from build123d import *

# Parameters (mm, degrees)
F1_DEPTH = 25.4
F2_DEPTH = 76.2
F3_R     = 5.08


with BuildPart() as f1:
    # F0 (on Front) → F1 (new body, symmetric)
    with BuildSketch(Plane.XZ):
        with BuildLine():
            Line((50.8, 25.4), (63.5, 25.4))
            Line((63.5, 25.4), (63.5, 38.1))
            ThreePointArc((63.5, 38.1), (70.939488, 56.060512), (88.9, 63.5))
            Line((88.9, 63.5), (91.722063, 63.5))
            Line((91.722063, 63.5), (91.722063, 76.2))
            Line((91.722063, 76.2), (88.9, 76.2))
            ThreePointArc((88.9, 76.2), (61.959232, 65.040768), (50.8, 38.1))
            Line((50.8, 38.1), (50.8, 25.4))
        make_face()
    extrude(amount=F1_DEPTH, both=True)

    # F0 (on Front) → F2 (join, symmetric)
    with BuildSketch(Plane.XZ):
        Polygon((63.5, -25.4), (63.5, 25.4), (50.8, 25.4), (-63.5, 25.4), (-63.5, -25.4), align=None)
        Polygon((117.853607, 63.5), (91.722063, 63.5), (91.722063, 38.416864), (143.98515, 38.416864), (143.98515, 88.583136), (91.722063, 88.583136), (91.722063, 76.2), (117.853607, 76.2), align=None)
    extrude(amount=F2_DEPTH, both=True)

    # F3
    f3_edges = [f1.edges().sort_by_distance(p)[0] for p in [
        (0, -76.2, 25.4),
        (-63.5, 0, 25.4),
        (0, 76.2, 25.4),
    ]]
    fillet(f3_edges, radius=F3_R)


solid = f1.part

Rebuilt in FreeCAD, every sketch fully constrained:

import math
import FreeCAD as App
import Part
import Sketcher

V = App.Vector
Q = App.Units.Quantity


def edges_at(feature, points):
    """Names of the edges that pass closest to the given points."""
    edges = feature.Shape.Edges
    near = lambda p: min(range(len(edges)), key=lambda i: edges[i].distToShape(Part.Vertex(*p))[0])
    return sorted({f"Edge{near(p) + 1}" for p in points})


def add_polygon(sketch, points):
    """Adds a closed chain of lines whose ends are joined by coincident constraints."""
    first, n = sketch.GeometryCount, len(points)
    for a, b in zip(points, points[1:] + points[:1]):
        sketch.addGeometry(Part.LineSegment(App.Vector(*a, 0), App.Vector(*b, 0)), False)
    for i in range(n):
        sketch.addConstraint(Sketcher.Constraint("Coincident", first + i, 2, first + (i + 1) % n, 1))

doc = App.newDocument("Part")
params = doc.addObject("Spreadsheet::Sheet", "Params")
for row, (alias, value) in enumerate([
    ("sketch1_radius", "1 in"),
    ("sketch1_radius2", "1.5 in"),
    ("pad1_length", "2 in"),
    ("sketch2_width", "5 in"),
    ("sketch2_height", "2 in"),
    ("sketch2_height2", "0.5 in"),
    ("pad2_length", "6 in"),
    ("fillet_radius", "0.2 in"),
], start=1):
    params.set(f"A{row}", alias)
    params.set(f"B{row}", "=" + value)
    params.setAlias(f"B{row}", alias)

body = doc.addObject("PartDesign::Body", "Body")
body.AllowCompound = True

sketch1 = doc.addObject("Sketcher::SketchObject", "Sketch")
body.addObject(sketch1)
sketch1.AttachmentSupport = (doc.XZ_Plane, [""])
sketch1.MapMode = "FlatFace"
sketch1.addGeometry(Part.LineSegment(V(50.8, 25.4, 0), V(63.5, 25.4, 0)), False)
sketch1.addGeometry(Part.LineSegment(V(63.5, 25.4, 0), V(63.5, 38.1, 0)), False)
sketch1.addGeometry(Part.ArcOfCircle(Part.Circle(V(88.9, 38.1, 0), V(0, 0, 1), 25.4), math.radians(90), math.radians(180)), False)
sketch1.addGeometry(Part.LineSegment(V(88.9, 63.5, 0), V(91.7, 63.5, 0)), False)
sketch1.addGeometry(Part.LineSegment(V(91.7, 63.5, 0), V(91.7, 76.2, 0)), False)
sketch1.addGeometry(Part.LineSegment(V(91.7, 76.2, 0), V(88.9, 76.2, 0)), False)
sketch1.addGeometry(Part.ArcOfCircle(Part.Circle(V(88.9, 38.1, 0), V(0, 0, 1), 38.1), math.radians(90), math.radians(180)), False)
sketch1.addGeometry(Part.LineSegment(V(50.8, 38.1, 0), V(50.8, 25.4, 0)), False)
sketch1.addConstraint(Sketcher.Constraint("Coincident", 0, 2, 1, 1))
sketch1.addConstraint(Sketcher.Constraint("Tangent", 1, 2, 2, 2))
sketch1.addConstraint(Sketcher.Constraint("Tangent", 2, 1, 3, 1))
sketch1.addConstraint(Sketcher.Constraint("Coincident", 3, 2, 4, 1))
sketch1.addConstraint(Sketcher.Constraint("Coincident", 4, 2, 5, 1))
sketch1.addConstraint(Sketcher.Constraint("Tangent", 5, 2, 6, 1))
sketch1.addConstraint(Sketcher.Constraint("Tangent", 6, 2, 7, 1))
sketch1.addConstraint(Sketcher.Constraint("Coincident", 7, 2, 0, 1))
sketch1.addConstraint(Sketcher.Constraint("Horizontal", 0))
sketch1.addConstraint(Sketcher.Constraint("Vertical", 1))
sketch1.addConstraint(Sketcher.Constraint("Horizontal", 3))
sketch1.addConstraint(Sketcher.Constraint("Vertical", 4))
sketch1.addConstraint(Sketcher.Constraint("Horizontal", 5))
sketch1.addConstraint(Sketcher.Constraint("Vertical", 7))
sketch1.addConstraint(Sketcher.Constraint("Coincident", 6, 3, 2, 3))
sketch1.addConstraint(Sketcher.Constraint("Equal", 0, 1))
sketch1.addConstraint(Sketcher.Constraint("Radius", 2, Q("1 in")))
sketch1.addConstraint(Sketcher.Constraint("Radius", 6, Q("1.5 in")))
sketch1.addConstraint(Sketcher.Constraint("DistanceY", -1, 1, 0, 2, Q("1 in")))
sketch1.addConstraint(Sketcher.Constraint("DistanceX", -1, 1, 6, 2, Q("2 in")))
sketch1.addConstraint(Sketcher.Constraint("DistanceX", 3, 1, 3, 2, 2.822063))
sketch1.setExpression("Constraints[16]", "Params.sketch1_radius")
sketch1.setExpression("Constraints[17]", "Params.sketch1_radius2")
pad1 = doc.addObject("PartDesign::Pad", "Pad")
body.addObject(pad1)
pad1.Profile = sketch1
pad1.setExpression("Length", "Params.pad1_length")
pad1.Midplane = True

sketch2 = doc.addObject("Sketcher::SketchObject", "Sketch001")
body.addObject(sketch2)
sketch2.AttachmentSupport = (doc.XZ_Plane, [""])
sketch2.MapMode = "FlatFace"
add_polygon(sketch2, [(64, -25), (64, 25), (-64, 25), (-64, -25)])
add_polygon(sketch2, [(118, 64), (92, 64), (92, 38), (144, 38), (144, 89), (92, 89), (92, 76), (118, 76)])
sketch2.addConstraint(Sketcher.Constraint("Vertical", 0))
sketch2.addConstraint(Sketcher.Constraint("Horizontal", 1))
sketch2.addConstraint(Sketcher.Constraint("Vertical", 2))
sketch2.addConstraint(Sketcher.Constraint("Horizontal", 3))
sketch2.addConstraint(Sketcher.Constraint("Horizontal", 4))
sketch2.addConstraint(Sketcher.Constraint("Vertical", 5))
sketch2.addConstraint(Sketcher.Constraint("Horizontal", 6))
sketch2.addConstraint(Sketcher.Constraint("Vertical", 7))
sketch2.addConstraint(Sketcher.Constraint("Horizontal", 8))
sketch2.addConstraint(Sketcher.Constraint("Vertical", 9))
sketch2.addConstraint(Sketcher.Constraint("Horizontal", 10))
sketch2.addConstraint(Sketcher.Constraint("Vertical", 11))
sketch2.addConstraint(Sketcher.Constraint("Symmetric", 0, 2, 2, 2, -1, 1))
sketch2.addConstraint(Sketcher.Constraint("Vertical", 5, 2, 8, 2))
sketch2.addConstraint(Sketcher.Constraint("DistanceX", 1, 2, 1, 1, Q("5 in")))
sketch2.addConstraint(Sketcher.Constraint("DistanceY", 0, 1, 0, 2, Q("2 in")))
sketch2.addConstraint(Sketcher.Constraint("DistanceY", 11, 2, 11, 1, Q("0.5 in")))
sketch2.addConstraint(Sketcher.Constraint("DistanceY", -1, 1, 9, 2, Q("3 in")))
sketch2.addConstraint(Sketcher.Constraint("DistanceX", 4, 2, 4, 1, 26.131544))
sketch2.addConstraint(Sketcher.Constraint("DistanceX", 6, 1, 6, 2, 52.263087))
sketch2.addConstraint(Sketcher.Constraint("DistanceY", 5, 2, 5, 1, 25.083136))
sketch2.addConstraint(Sketcher.Constraint("DistanceY", 7, 1, 7, 2, 50.166272))
sketch2.addConstraint(Sketcher.Constraint("DistanceX", -1, 1, 6, 2, 143.98515))
sketch2.setExpression("Constraints[26]", "Params.sketch2_width")
sketch2.setExpression("Constraints[27]", "Params.sketch2_height")
sketch2.setExpression("Constraints[28]", "Params.sketch2_height2")
pad2 = doc.addObject("PartDesign::Pad", "Pad001")
body.addObject(pad2)
pad2.Profile = sketch2
pad2.setExpression("Length", "Params.pad2_length")
pad2.Midplane = True
doc.recompute()

fillet = doc.addObject("PartDesign::Fillet", "Fillet")
body.addObject(fillet)
fillet.Base = (pad2, edges_at(pad2, [(0, -76.2, 25.4), (-63.5, 0, 25.4), (0, 76.2, 25.4)]))
fillet.setExpression("Radius", "Params.fillet_radius")

doc.recompute()
